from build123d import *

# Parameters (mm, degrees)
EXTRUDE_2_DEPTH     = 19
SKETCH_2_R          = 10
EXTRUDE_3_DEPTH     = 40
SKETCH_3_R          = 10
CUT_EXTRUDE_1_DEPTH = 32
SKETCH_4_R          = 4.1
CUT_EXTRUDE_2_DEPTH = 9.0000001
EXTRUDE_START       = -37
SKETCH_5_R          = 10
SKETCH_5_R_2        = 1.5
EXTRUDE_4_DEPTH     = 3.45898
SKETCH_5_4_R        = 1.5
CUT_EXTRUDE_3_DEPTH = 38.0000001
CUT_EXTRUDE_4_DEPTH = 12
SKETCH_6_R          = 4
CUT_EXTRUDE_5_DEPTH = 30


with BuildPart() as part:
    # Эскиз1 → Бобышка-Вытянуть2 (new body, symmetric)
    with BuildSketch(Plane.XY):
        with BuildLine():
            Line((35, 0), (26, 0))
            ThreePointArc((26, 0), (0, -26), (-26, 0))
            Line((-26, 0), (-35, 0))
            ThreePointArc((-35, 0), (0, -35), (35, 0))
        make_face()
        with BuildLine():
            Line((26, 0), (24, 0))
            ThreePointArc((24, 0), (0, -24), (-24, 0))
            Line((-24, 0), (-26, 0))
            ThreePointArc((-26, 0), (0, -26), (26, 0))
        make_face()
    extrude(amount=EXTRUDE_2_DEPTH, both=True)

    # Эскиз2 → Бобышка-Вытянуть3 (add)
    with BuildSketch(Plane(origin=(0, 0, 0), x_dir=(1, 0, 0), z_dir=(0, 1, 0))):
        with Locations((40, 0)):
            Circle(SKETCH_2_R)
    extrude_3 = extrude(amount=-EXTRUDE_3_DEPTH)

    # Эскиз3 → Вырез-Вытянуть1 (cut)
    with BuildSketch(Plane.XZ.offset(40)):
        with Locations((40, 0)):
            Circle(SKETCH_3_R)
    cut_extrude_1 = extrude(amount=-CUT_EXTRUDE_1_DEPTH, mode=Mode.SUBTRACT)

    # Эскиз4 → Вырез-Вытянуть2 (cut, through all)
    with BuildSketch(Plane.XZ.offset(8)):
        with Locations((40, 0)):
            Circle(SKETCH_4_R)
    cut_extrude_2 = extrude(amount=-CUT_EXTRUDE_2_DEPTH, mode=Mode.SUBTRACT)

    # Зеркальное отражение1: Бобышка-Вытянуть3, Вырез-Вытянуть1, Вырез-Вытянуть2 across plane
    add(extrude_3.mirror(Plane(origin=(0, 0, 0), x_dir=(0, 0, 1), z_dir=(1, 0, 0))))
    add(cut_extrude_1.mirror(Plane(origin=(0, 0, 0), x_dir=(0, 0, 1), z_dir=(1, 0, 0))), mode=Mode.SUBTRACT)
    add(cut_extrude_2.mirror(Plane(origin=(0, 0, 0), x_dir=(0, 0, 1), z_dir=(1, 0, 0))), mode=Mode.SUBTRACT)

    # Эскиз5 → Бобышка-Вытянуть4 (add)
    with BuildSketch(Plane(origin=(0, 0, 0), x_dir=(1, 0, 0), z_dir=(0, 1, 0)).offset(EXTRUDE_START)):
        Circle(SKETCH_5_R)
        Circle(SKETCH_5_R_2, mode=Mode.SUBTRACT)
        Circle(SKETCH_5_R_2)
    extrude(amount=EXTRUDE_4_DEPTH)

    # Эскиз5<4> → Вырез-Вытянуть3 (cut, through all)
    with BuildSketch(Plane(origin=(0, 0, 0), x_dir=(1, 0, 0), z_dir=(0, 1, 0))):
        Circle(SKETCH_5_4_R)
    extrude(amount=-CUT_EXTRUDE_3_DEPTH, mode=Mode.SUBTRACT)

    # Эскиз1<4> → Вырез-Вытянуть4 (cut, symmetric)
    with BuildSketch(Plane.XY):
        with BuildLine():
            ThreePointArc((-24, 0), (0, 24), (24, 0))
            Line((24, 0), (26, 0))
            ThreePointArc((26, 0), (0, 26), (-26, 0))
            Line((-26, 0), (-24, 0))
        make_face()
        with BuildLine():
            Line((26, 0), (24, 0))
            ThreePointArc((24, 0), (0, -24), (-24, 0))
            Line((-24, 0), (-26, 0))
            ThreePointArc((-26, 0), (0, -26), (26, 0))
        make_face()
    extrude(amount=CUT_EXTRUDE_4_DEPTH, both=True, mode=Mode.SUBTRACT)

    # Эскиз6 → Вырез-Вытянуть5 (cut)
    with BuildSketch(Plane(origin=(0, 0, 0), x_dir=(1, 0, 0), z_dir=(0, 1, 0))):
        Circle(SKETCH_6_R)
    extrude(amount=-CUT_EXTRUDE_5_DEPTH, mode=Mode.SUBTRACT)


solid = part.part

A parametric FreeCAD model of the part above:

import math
import FreeCAD as App
import Part
import Sketcher

V = App.Vector
Q = App.Units.Quantity

doc = App.newDocument("Part")
body = doc.addObject("PartDesign::Body", "Body")

# Sketch on XY plane
sketch1 = body.newObject("Sketcher::SketchObject", "Sketch")
sketch1.AttachmentSupport = (doc.getObject("XY_Plane"), [""])
sketch1.MapMode = "FlatFace"
sketch1.addGeometry([
    Part.LineSegment(V(35, 0, 0), V(24, 0, 0)),
    Part.ArcOfCircle(Part.Circle(V(0, 0, 0), V(0, 0, 1), 24), math.radians(180), math.radians(360)),
    Part.LineSegment(V(-24, 0, 0), V(-35, 0, 0)),
    Part.ArcOfCircle(Part.Circle(V(0, 0, 0), V(0, 0, 1), 35), math.radians(180), math.radians(360)),
], False)
sketch1.addConstraint([
    Sketcher.Constraint("Coincident", 0, 2, 1, 2),
    Sketcher.Constraint("Coincident", 1, 1, 2, 1),
    Sketcher.Constraint("Coincident", 2, 2, 3, 1),
    Sketcher.Constraint("Coincident", 3, 2, 0, 1),
    Sketcher.Constraint("Horizontal", 0),
    Sketcher.Constraint("Horizontal", 2),
    Sketcher.Constraint("Coincident", 1, 3, -1, 1),
    Sketcher.Constraint("Coincident", 3, 3, -1, 1),
    Sketcher.Constraint("PointOnObject", 0, 2, -1),
    Sketcher.Constraint("PointOnObject", 1, 1, -1),
    Sketcher.Constraint("Radius", 1, Q("24 mm")),
    Sketcher.Constraint("Radius", 3, Q("35 mm")),
])
pad1 = body.newObject("PartDesign::Pad", "Pad")
pad1.Profile = sketch1
pad1.Length = 38
pad1.Midplane = True

# Sketch on XZ plane
sketch2 = body.newObject("Sketcher::SketchObject", "Sketch001")
sketch2.AttachmentSupport = (doc.getObject("XZ_Plane"), [""])
sketch2.MapMode = "FlatFace"
sketch2.addGeometry(Part.Circle(V(40, 0, 0), V(0, 0, 1), 10), False)
sketch2.addConstraint([
    Sketcher.Constraint("PointOnObject", 0, 3, -1),
    Sketcher.Constraint("Diameter", 0, Q("20 mm")),
    Sketcher.Constraint("DistanceX", -1, 1, 0, 3, Q("40 mm")),
])
pad2 = body.newObject("PartDesign::Pad", "Pad001")
pad2.Profile = sketch2
pad2.Length = 40

# Sketch on XZ plane
sketch3 = body.newObject("Sketcher::SketchObject", "Sketch002")
sketch3.AttachmentSupport = (doc.getObject("XZ_Plane"), [""])
sketch3.MapMode = "FlatFace"
sketch3.AttachmentOffset = App.Placement(V(0, 0, 40), App.Rotation())
sketch3.addGeometry(Part.Circle(V(40, 0, 0), V(0, 0, 1), 10), False)
sketch3.addConstraint([
    Sketcher.Constraint("PointOnObject", 0, 3, -1),
    Sketcher.Constraint("Diameter", 0, Q("20 mm")),
    Sketcher.Constraint("DistanceX", -1, 1, 0, 3, Q("40 mm")),
])
pocket1 = body.newObject("PartDesign::Pocket", "Pocket")
pocket1.Profile = sketch3
pocket1.Length = 32

# Sketch on XZ plane
sketch4 = body.newObject("Sketcher::SketchObject", "Sketch003")
sketch4.AttachmentSupport = (doc.getObject("XZ_Plane"), [""])
sketch4.MapMode = "FlatFace"
sketch4.AttachmentOffset = App.Placement(V(0, 0, 8), App.Rotation())
sketch4.addGeometry(Part.Circle(V(40, 0, 0), V(0, 0, 1), 4.1), False)
sketch4.addConstraint([
    Sketcher.Constraint("PointOnObject", 0, 3, -1),
    Sketcher.Constraint("Diameter", 0, Q("8.2 mm")),
    Sketcher.Constraint("DistanceX", -1, 1, 0, 3, Q("40 mm")),
])
pocket2 = body.newObject("PartDesign::Pocket", "Pocket001")
pocket2.Profile = sketch4
pocket2.Type = "ThroughAll"
doc.recompute()

mirrored = body.newObject("PartDesign::Mirrored", "Mirrored")
mirrored.Originals = [pad2, pocket1, pocket2]
mirrored.MirrorPlane = (doc.getObject("YZ_Plane"), [""])
body.Tip = mirrored

# Sketch on XZ plane
sketch5 = body.newObject("Sketcher::SketchObject", "Sketch004")
sketch5.AttachmentSupport = (doc.getObject("XZ_Plane"), [""])
sketch5.MapMode = "FlatFace"
sketch5.AttachmentOffset = App.Placement(V(0, 0, 37), App.Rotation())
sketch5.addGeometry(Part.Circle(V(0, 0, 0), V(0, 0, 1), 10), False)
sketch5.addConstraint([
    Sketcher.Constraint("Coincident", 0, 3, -1, 1),
    Sketcher.Constraint("Diameter", 0, Q("20 mm")),
])
pad3 = body.newObject("PartDesign::Pad", "Pad002")
pad3.Profile = sketch5
pad3.Length = 3.45898
pad3.Reversed = True

# Sketch on XZ plane
sketch6 = body.newObject("Sketcher::SketchObject", "Sketch005")
sketch6.AttachmentSupport = (doc.getObject("XZ_Plane"), [""])
sketch6.MapMode = "FlatFace"
sketch6.addGeometry(Part.Circle(V(0, 0, 0), V(0, 0, 1), 1.5), False)
sketch6.addConstraint([
    Sketcher.Constraint("Coincident", 0, 3, -1, 1),
    Sketcher.Constraint("Diameter", 0, Q("3 mm")),
])
pocket3 = body.newObject("PartDesign::Pocket", "Pocket002")
pocket3.Profile = sketch6
pocket3.Type = "ThroughAll"
pocket3.Reversed = True

# Sketch on XY plane
sketch7 = body.newObject("Sketcher::SketchObject", "Sketch006")
sketch7.AttachmentSupport = (doc.getObject("XY_Plane"), [""])
sketch7.MapMode = "FlatFace"
sketch7.addGeometry([
    Part.Circle(V(0, 0, 0), V(0, 0, 1), 26),
    Part.Circle(V(0, 0, 0), V(0, 0, 1), 24),
], False)
sketch7.addConstraint([
    Sketcher.Constraint("Coincident", 0, 3, -1, 1),
    Sketcher.Constraint("Coincident", 1, 3, -1, 1),
    Sketcher.Constraint("Diameter", 0, Q("52 mm")),
    Sketcher.Constraint("Diameter", 1, Q("48 mm")),
])
pocket4 = body.newObject("PartDesign::Pocket", "Pocket003")
pocket4.Profile = sketch7
pocket4.Length = 24
pocket4.Midplane = True

# Sketch on XZ plane
sketch8 = body.newObject("Sketcher::SketchObject", "Sketch007")
sketch8.AttachmentSupport = (doc.getObject("XZ_Plane"), [""])
sketch8.MapMode = "FlatFace"
sketch8.addGeometry(Part.Circle(V(0, 0, 0), V(0, 0, 1), 4), False)
sketch8.addConstraint([
    Sketcher.Constraint("Coincident", 0, 3, -1, 1),
    Sketcher.Constraint("Diameter", 0, Q("8 mm")),
])
pocket5 = body.newObject("PartDesign::Pocket", "Pocket004")
pocket5.Profile = sketch8
pocket5.Length = 30
pocket5.Reversed = True

doc.recompute()
